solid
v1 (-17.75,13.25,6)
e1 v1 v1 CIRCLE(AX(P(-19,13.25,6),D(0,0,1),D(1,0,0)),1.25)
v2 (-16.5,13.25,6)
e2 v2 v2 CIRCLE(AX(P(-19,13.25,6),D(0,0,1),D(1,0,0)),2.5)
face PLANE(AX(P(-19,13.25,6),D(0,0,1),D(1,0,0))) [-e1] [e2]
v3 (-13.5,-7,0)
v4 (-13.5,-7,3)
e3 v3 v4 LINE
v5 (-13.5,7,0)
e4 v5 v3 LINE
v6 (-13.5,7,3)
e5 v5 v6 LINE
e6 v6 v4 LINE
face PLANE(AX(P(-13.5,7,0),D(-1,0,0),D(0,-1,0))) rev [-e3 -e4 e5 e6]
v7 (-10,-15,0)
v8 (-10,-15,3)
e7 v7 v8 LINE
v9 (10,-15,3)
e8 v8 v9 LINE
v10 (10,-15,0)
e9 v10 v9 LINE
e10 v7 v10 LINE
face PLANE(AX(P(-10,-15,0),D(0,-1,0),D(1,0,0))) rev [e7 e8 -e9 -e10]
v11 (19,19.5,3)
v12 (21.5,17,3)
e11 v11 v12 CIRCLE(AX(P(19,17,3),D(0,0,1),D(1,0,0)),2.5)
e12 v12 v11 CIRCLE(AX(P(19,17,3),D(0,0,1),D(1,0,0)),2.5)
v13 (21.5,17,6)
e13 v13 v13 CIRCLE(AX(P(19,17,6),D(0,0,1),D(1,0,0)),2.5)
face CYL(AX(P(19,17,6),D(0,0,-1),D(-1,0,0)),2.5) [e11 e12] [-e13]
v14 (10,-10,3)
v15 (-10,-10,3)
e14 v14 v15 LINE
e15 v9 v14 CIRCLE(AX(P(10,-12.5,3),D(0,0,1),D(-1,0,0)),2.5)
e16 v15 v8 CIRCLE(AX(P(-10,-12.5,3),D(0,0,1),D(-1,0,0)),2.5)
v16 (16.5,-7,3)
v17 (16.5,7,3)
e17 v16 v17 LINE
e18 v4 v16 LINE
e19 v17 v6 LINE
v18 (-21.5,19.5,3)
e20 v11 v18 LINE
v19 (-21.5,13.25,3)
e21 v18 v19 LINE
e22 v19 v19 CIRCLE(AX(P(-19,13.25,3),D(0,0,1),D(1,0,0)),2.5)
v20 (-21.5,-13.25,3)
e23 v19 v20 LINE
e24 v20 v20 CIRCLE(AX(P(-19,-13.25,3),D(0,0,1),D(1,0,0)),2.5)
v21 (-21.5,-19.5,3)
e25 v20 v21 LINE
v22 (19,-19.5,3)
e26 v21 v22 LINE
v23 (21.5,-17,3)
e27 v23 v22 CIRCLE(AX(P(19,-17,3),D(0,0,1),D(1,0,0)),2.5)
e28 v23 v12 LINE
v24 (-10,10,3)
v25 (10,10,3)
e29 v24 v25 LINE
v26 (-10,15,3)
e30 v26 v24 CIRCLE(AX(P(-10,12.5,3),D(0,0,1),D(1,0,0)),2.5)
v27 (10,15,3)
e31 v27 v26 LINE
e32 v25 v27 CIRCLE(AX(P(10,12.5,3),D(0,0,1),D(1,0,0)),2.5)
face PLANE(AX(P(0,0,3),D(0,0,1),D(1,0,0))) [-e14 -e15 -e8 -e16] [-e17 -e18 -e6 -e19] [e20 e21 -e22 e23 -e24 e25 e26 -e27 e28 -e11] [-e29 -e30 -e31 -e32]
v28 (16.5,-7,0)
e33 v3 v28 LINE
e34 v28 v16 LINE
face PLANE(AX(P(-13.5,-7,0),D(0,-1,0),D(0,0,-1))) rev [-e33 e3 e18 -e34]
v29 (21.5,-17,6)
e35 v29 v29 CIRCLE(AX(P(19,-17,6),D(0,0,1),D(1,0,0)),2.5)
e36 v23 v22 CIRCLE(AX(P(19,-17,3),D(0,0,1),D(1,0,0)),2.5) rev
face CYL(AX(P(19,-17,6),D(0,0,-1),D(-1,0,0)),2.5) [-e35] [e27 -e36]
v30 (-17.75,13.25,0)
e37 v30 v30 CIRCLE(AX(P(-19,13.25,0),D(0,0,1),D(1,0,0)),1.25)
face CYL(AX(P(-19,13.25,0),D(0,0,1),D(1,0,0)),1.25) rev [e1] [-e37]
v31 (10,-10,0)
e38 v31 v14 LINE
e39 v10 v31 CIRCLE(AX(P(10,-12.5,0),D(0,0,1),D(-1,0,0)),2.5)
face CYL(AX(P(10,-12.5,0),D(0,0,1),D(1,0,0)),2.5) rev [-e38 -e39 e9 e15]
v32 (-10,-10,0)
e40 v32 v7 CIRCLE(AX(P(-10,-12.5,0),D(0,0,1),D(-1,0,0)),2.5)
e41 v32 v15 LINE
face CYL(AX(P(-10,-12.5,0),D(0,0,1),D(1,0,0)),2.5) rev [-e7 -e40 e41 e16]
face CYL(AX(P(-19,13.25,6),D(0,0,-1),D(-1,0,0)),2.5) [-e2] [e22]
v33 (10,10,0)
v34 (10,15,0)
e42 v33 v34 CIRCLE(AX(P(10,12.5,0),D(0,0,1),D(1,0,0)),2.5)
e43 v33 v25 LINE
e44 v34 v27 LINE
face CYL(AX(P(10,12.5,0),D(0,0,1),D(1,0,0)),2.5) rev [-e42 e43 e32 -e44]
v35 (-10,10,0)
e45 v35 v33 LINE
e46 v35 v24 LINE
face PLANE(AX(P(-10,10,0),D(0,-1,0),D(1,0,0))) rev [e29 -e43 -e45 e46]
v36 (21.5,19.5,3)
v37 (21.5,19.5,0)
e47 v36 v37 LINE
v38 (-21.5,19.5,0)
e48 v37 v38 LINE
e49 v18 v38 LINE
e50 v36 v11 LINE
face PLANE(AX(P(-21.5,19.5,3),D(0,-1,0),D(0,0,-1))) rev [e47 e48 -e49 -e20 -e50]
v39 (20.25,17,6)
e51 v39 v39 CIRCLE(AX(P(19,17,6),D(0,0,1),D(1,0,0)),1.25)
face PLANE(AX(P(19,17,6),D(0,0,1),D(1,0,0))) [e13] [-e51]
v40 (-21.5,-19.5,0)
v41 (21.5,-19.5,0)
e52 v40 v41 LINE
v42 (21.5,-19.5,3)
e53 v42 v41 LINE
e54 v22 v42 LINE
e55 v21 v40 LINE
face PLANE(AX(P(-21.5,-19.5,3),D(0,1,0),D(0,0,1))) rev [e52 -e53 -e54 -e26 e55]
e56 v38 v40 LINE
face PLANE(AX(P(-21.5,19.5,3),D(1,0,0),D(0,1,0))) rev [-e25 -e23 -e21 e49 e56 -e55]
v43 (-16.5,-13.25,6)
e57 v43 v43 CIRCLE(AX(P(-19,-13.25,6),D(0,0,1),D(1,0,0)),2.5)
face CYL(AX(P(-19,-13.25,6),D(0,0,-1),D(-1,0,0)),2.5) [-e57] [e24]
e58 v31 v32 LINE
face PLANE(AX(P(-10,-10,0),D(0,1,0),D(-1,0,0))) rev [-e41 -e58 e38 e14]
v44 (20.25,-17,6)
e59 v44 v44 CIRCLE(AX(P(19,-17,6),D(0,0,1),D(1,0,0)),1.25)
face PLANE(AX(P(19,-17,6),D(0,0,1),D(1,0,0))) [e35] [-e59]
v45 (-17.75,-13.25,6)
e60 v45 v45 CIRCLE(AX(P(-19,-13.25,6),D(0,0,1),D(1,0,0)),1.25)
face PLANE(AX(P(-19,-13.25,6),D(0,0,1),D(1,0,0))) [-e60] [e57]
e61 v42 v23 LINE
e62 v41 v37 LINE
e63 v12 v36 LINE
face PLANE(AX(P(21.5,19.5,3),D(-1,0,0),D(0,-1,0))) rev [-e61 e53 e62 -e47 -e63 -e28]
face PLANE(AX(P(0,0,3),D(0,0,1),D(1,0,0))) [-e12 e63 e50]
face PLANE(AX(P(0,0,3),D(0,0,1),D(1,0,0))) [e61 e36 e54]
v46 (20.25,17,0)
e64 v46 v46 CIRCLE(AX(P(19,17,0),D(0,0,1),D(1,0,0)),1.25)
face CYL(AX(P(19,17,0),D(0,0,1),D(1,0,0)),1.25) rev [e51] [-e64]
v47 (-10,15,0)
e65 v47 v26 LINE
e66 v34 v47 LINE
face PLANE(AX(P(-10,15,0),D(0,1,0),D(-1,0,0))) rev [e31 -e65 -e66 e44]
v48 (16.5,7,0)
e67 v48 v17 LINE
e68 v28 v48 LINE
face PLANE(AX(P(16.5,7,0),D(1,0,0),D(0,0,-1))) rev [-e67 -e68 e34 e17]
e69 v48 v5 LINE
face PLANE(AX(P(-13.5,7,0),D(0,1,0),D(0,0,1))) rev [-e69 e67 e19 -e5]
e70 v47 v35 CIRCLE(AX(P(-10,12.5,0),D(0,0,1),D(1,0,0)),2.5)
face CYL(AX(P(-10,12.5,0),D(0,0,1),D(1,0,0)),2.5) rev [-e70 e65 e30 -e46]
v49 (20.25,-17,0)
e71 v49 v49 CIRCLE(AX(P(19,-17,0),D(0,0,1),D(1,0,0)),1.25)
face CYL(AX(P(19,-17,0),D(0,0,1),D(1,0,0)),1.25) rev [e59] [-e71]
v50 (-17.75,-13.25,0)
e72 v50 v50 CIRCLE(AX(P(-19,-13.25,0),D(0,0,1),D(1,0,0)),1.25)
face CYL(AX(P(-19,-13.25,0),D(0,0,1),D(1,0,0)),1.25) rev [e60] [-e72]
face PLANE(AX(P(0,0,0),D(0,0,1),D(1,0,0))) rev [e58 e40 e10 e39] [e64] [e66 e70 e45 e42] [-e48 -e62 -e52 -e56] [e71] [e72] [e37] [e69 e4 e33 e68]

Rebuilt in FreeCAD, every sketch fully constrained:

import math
import FreeCAD as App
import Part
import Sketcher
from FreeCAD import Vector
Q = App.Units.Quantity


def add_polygon(sketch, points):
    """Adds a closed chain of lines whose ends are joined by coincident constraints."""
    first, n = sketch.GeometryCount, len(points)
    for a, b in zip(points, points[1:] + points[:1]):
        sketch.addGeometry(Part.LineSegment(App.Vector(*a, 0), App.Vector(*b, 0)), False)
    for i in range(n):
        sketch.addConstraint(Sketcher.Constraint("Coincident", first + i, 2, first + (i + 1) % n, 1))

doc = App.newDocument("Part")
body = doc.addObject("PartDesign::Body", "Body")

sketch1 = body.newObject("Sketcher::SketchObject", "Sketch")
sketch1.AttachmentSupport = (doc.getObject("XY_Plane"), [""])
sketch1.MapMode = "FlatFace"
add_polygon(sketch1, [(-22, 20), (-22, -20), (22, -20), (22, 20)])
sketch1.addConstraint(Sketcher.Constraint("Vertical", 0))
sketch1.addConstraint(Sketcher.Constraint("Horizontal", 1))
sketch1.addConstraint(Sketcher.Constraint("Vertical", 2))
sketch1.addConstraint(Sketcher.Constraint("Horizontal", 3))
sketch1.addConstraint(Sketcher.Constraint("Symmetric", 0, 2, 2, 2, -1, 1))
sketch1.addConstraint(Sketcher.Constraint("DistanceX", 1, 1, 1, 2, Q("43 mm")))
sketch1.addConstraint(Sketcher.Constraint("DistanceY", 0, 2, 0, 1, Q("39 mm")))
pad1 = body.newObject("PartDesign::Pad", "Pad")
pad1.Profile = sketch1
pad1.Length = 3

sketch2 = body.newObject("Sketcher::SketchObject", "Sketch001")
sketch2.AttachmentSupport = (doc.getObject("XY_Plane"), [""])
sketch2.MapMode = "FlatFace"
sketch2.AttachmentOffset = App.Placement(Vector(0, 0, 3), App.Rotation())
sketch2.addGeometry(Part.Circle(Vector(19, 17, 0), Vector(0, 0, 1), 2.5), False)
sketch2.addGeometry(Part.Circle(Vector(-19, 13.2, 0), Vector(0, 0, 1), 2.5), False)
sketch2.addGeometry(Part.Circle(Vector(19, -17, 0), Vector(0, 0, 1), 2.5), False)
sketch2.addGeometry(Part.Circle(Vector(-19, -13.2, 0), Vector(0, 0, 1), 2.5), False)
sketch2.addConstraint(Sketcher.Constraint("Equal", 0, 1))
sketch2.addConstraint(Sketcher.Constraint("Equal", 1, 2))
sketch2.addConstraint(Sketcher.Constraint("Equal", 2, 3))
sketch2.addConstraint(Sketcher.Constraint("Symmetric", 0, 3, 2, 3, -1))
sketch2.addConstraint(Sketcher.Constraint("Symmetric", 1, 3, 3, 3, -1))
sketch2.addConstraint(Sketcher.Constraint("Diameter", 0, Q("5 mm")))
sketch2.addConstraint(Sketcher.Constraint("DistanceX", -1, 1, 0, 3, Q("19 mm")))
sketch2.addConstraint(Sketcher.Constraint("DistanceY", -1, 1, 0, 3, Q("17 mm")))
sketch2.addConstraint(Sketcher.Constraint("DistanceX", 1, 3, -1, 1, Q("19 mm")))
sketch2.addConstraint(Sketcher.Constraint("DistanceY", 3, 3, 1, 3, Q("26.5 mm")))
pad2 = body.newObject("PartDesign::Pad", "Pad001")
pad2.Profile = sketch2
pad2.Length = 3

sketch3 = body.newObject("Sketcher::SketchObject", "Sketch002")
sketch3.AttachmentSupport = (doc.getObject("XY_Plane"), [""])
sketch3.MapMode = "FlatFace"
sketch3.AttachmentOffset = App.Placement(Vector(0, 0, 6), App.Rotation())
sketch3.addGeometry(Part.Circle(Vector(-19, 13.2, 0), Vector(0, 0, 1), 1.2), False)
sketch3.addGeometry(Part.Circle(Vector(19, 17, 0), Vector(0, 0, 1), 1.2), False)
sketch3.addGeometry(Part.Circle(Vector(19, -17, 0), Vector(0, 0, 1), 1.2), False)
sketch3.addGeometry(Part.Circle(Vector(-19, -13.2, 0), Vector(0, 0, 1), 1.2), False)
sketch3.addConstraint(Sketcher.Constraint("Equal", 0, 1))
sketch3.addConstraint(Sketcher.Constraint("Equal", 1, 2))
sketch3.addConstraint(Sketcher.Constraint("Equal", 2, 3))
sketch3.addConstraint(Sketcher.Constraint("Symmetric", 1, 3, 2, 3, -1))
sketch3.addConstraint(Sketcher.Constraint("Symmetric", 0, 3, 3, 3, -1))
sketch3.addConstraint(Sketcher.Constraint("Diameter", 0, Q("2.5 mm")))
sketch3.addConstraint(Sketcher.Constraint("DistanceX", 0, 3, -1, 1, Q("19 mm")))
sketch3.addConstraint(Sketcher.Constraint("DistanceX", -1, 1, 1, 3, Q("19 mm")))
sketch3.addConstraint(Sketcher.Constraint("DistanceY", -1, 1, 1, 3, Q("17 mm")))
sketch3.addConstraint(Sketcher.Constraint("DistanceY", 3, 3, 0, 3, Q("26.5 mm")))
pocket1 = body.newObject("PartDesign::Pocket", "Pocket")
pocket1.Profile = sketch3
pocket1.Type = "ThroughAll"

sketch4 = body.newObject("Sketcher::SketchObject", "Sketch003")
sketch4.AttachmentSupport = (doc.getObject("XY_Plane"), [""])
sketch4.MapMode = "FlatFace"
sketch4.AttachmentOffset = App.Placement(Vector(0, 0, 3), App.Rotation())
sketch4.addGeometry(Part.LineSegment(Vector(10, 15, 0), Vector(-10, 15, 0)), False)
sketch4.addGeometry(Part.ArcOfCircle(Part.Circle(Vector(-10, 12.5, 0), Vector(0, 0, 1), 2.5), math.radians(90), math.radians(270)), False)
sketch4.addGeometry(Part.LineSegment(Vector(-10, 10, 0), Vector(10, 10, 0)), False)
sketch4.addGeometry(Part.ArcOfCircle(Part.Circle(Vector(10, 12.5, 0), Vector(0, 0, 1), 2.5), math.radians(-90), math.radians(90)), False)
add_polygon(sketch4, [(-13.5, 7), (-13.5, -7), (16.5, -7), (16.5, 7)])
sketch4.addGeometry(Part.LineSegment(Vector(-10, -15, 0), Vector(10, -15, 0)), False)
sketch4.addGeometry(Part.ArcOfCircle(Part.Circle(Vector(10, -12.5, 0), Vector(0, 0, 1), 2.5), math.radians(-90), math.radians(90)), False)
sketch4.addGeometry(Part.LineSegment(Vector(10, -10, 0), Vector(-10, -10, 0)), False)
sketch4.addGeometry(Part.ArcOfCircle(Part.Circle(Vector(-10, -12.5, 0), Vector(0, 0, 1), 2.5), math.radians(90), math.radians(270)), False)
sketch4.addConstraint(Sketcher.Constraint("Tangent", 0, 2, 1, 1))
sketch4.addConstraint(Sketcher.Constraint("Tangent", 1, 2, 2, 1))
sketch4.addConstraint(Sketcher.Constraint("Tangent", 2, 2, 3, 1))
sketch4.addConstraint(Sketcher.Constraint("Tangent", 3, 2, 0, 1))
sketch4.addConstraint(Sketcher.Constraint("Tangent", 8, 2, 9, 1))
sketch4.addConstraint(Sketcher.Constraint("Tangent", 9, 2, 10, 1))
sketch4.addConstraint(Sketcher.Constraint("Tangent", 10, 2, 11, 1))
sketch4.addConstraint(Sketcher.Constraint("Tangent", 11, 2, 8, 1))
sketch4.addConstraint(Sketcher.Constraint("Horizontal", 0))
sketch4.addConstraint(Sketcher.Constraint("Horizontal", 2))
sketch4.addConstraint(Sketcher.Constraint("Vertical", 4))
sketch4.addConstraint(Sketcher.Constraint("Horizontal", 5))
sketch4.addConstraint(Sketcher.Constraint("Vertical", 6))
sketch4.addConstraint(Sketcher.Constraint("Horizontal", 7))
sketch4.addConstraint(Sketcher.Constraint("Horizontal", 8))
sketch4.addConstraint(Sketcher.Constraint("Horizontal", 10))
sketch4.addConstraint(Sketcher.Constraint("Equal", 3, 9))
sketch4.addConstraint(Sketcher.Constraint("Symmetric", 1, 3, 9, 3, -1, 1))
sketch4.addConstraint(Sketcher.Constraint("Vertical", 3, 3, 9, 3))
sketch4.addConstraint(Sketcher.Constraint("Vertical", 1, 3, 11, 3))
sketch4.addConstraint(Sketcher.Constraint("Radius", 1, Q("2.5 mm")))
sketch4.addConstraint(Sketcher.Constraint("DistanceX", 0, 2, 0, 1, Q("20 mm")))
sketch4.addConstraint(Sketcher.Constraint("DistanceX", 5, 1, 5, 2, Q("30 mm")))
sketch4.addConstraint(Sketcher.Constraint("DistanceY", 4, 2, 4, 1, Q("14 mm")))
sketch4.addConstraint(Sketcher.Constraint("DistanceY", -1, 1, 0, 2, Q("15 mm")))
sketch4.addConstraint(Sketcher.Constraint("DistanceY", 4, 2, -1, 1, Q("7 mm")))
sketch4.addConstraint(Sketcher.Constraint("DistanceX", 4, 2, -1, 1, Q("13.5 mm")))
pocket2 = body.newObject("PartDesign::Pocket", "Pocket001")
pocket2.Profile = sketch4
pocket2.Type = "ThroughAll"

doc.recompute()
